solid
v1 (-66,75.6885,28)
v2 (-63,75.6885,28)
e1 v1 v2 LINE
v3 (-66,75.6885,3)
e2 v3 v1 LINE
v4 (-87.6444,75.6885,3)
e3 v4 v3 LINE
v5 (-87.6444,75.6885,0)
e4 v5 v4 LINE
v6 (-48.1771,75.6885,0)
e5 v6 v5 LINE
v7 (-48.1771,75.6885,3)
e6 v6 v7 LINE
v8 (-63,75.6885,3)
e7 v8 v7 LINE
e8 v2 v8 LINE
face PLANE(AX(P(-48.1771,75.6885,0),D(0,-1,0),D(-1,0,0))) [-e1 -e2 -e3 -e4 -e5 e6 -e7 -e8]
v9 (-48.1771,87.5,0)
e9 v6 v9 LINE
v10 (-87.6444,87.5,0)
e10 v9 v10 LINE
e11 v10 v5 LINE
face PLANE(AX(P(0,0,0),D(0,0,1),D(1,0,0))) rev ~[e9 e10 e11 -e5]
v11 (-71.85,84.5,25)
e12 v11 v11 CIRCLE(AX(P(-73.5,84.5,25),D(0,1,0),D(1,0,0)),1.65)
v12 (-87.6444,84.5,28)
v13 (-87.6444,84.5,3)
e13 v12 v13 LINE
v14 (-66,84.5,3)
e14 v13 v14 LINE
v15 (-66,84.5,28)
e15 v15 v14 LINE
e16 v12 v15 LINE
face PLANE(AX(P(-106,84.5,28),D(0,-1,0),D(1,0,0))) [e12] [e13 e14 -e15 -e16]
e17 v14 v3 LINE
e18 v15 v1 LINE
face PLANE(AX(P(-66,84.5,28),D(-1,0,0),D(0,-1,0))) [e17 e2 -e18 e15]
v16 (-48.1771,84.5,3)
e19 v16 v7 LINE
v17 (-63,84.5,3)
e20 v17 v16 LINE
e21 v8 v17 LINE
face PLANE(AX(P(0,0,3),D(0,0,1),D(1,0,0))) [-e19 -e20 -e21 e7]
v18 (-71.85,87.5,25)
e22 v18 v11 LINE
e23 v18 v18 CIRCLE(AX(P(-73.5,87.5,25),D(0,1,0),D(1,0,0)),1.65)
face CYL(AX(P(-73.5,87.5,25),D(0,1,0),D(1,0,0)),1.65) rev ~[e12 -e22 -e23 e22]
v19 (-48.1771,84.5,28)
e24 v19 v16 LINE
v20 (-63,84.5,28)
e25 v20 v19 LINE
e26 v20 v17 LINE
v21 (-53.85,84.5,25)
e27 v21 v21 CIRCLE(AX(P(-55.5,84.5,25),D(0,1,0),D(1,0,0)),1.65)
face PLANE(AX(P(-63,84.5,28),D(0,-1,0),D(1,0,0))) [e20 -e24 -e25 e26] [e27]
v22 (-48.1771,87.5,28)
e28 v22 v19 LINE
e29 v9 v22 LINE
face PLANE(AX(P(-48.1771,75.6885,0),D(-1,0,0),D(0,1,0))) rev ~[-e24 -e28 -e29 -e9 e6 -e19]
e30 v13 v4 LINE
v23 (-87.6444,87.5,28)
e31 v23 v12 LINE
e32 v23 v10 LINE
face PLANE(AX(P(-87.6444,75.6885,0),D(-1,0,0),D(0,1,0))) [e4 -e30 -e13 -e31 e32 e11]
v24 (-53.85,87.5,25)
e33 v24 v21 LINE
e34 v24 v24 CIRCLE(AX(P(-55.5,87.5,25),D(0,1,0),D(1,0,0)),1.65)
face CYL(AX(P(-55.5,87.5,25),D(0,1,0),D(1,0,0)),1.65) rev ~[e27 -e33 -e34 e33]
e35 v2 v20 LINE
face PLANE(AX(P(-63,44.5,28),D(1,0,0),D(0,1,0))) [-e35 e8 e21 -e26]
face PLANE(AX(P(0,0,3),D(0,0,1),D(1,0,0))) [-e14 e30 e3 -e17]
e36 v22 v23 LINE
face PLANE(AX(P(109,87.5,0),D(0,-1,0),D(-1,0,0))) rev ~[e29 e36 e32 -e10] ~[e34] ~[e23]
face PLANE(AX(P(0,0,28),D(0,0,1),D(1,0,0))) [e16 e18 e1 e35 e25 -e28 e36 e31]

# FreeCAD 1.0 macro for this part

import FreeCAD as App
import Part
import Sketcher

V = App.Vector


def add_polygon(sketch, points):
    """Adds a closed chain of lines whose ends are joined by coincident constraints."""
    first, n = sketch.GeometryCount, len(points)
    for a, b in zip(points, points[1:] + points[:1]):
        sketch.addGeometry(Part.LineSegment(App.Vector(*a, 0), App.Vector(*b, 0)), False)
    for i in range(n):
        sketch.addConstraint(Sketcher.Constraint("Coincident", first + i, 2, first + (i + 1) % n, 1))

doc = App.newDocument("Part")
params = doc.addObject("Spreadsheet::Sheet", "Params")
for row, (alias, value) in enumerate([
    ("sketch1_width", "218 mm"),
    ("sketch1_height", "175 mm"),
    ("pad1_length", "28 mm"),
    ("sketch2_width", "40 mm"),
    ("pocket1_length", "25 mm"),
    ("sketch3_diameter", "3.3 mm"),
    ("pocket2_length", "10 mm"),
], start=1):
    params.set(f"A{row}", alias)
    params.set(f"B{row}", "=" + value)
    params.setAlias(f"B{row}", alias)

body = doc.addObject("PartDesign::Body", "Body")

sketch1 = doc.addObject("Sketcher::SketchObject", "Sketch")
body.addObject(sketch1)
sketch1.AttachmentSupport = (doc.XY_Plane, [""])
sketch1.MapMode = "FlatFace"
add_polygon(sketch1, [(-109, 88), (-109, -88), (109, -88), (109, 88)])
sketch1.addConstraint([
    Sketcher.Constraint("Vertical", 0),
    Sketcher.Constraint("Horizontal", 1),
    Sketcher.Constraint("Vertical", 2),
    Sketcher.Constraint("Horizontal", 3),
    Sketcher.Constraint("Symmetric", 0, 2, 2, 2, -1, 1),
    Sketcher.Constraint("DistanceX", 1, 1, 1, 2, 218.0),
    Sketcher.Constraint("DistanceY", 0, 2, 0, 1, 175.0),
])
sketch1.setExpression("Constraints[9]", "Params.sketch1_width")
sketch1.setExpression("Constraints[10]", "Params.sketch1_height")
pad1 = doc.addObject("PartDesign::Pad", "Pad")
body.addObject(pad1)
pad1.Profile = sketch1
pad1.setExpression("Length", "Params.pad1_length")

sketch2 = doc.addObject("Sketcher::SketchObject", "Sketch001")
body.addObject(sketch2)
sketch2.AttachmentSupport = (doc.XY_Plane, [""])
sketch2.MapMode = "FlatFace"
sketch2.AttachmentOffset = App.Placement(V(0, 0, 28), App.Rotation())
add_polygon(sketch2, [(-66, 84), (-106, 84), (-106, 44), (-66, 44)])
add_polygon(sketch2, [(-23, 84), (-63, 84), (-63, 44), (-23, 44)])
add_polygon(sketch2, [(20, 84), (-20, 84), (-20, 44), (20, 44)])
add_polygon(sketch2, [(63, 84), (23, 84), (23, 44), (63, 44)])
add_polygon(sketch2, [(106, 84), (66, 84), (66, 44), (106, 44)])
add_polygon(sketch2, [(-66, 42), (-106, 42), (-106, 2), (-66, 2)])
add_polygon(sketch2, [(-23, 42), (-63, 42), (-63, 2), (-23, 2)])
add_polygon(sketch2, [(20, 42), (-20, 42), (-20, 2), (20, 2)])
add_polygon(sketch2, [(63, 42), (23, 42), (23, 2), (63, 2)])
add_polygon(sketch2, [(106, 42), (66, 42), (66, 2), (106, 2)])
add_polygon(sketch2, [(-66, -2), (-106, -2), (-106, -42), (-66, -42)])
add_polygon(sketch2, [(-23, -2), (-63, -2), (-63, -42), (-23, -42)])
add_polygon(sketch2, [(20, -2), (-20, -2), (-20, -42), (20, -42)])
add_polygon(sketch2, [(63, -2), (23, -2), (23, -42), (63, -42)])
add_polygon(sketch2, [(106, -2), (66, -2), (66, -42), (106, -42)])
add_polygon(sketch2, [(-66, -44), (-106, -44), (-106, -84), (-66, -84)])
add_polygon(sketch2, [(-23, -44), (-63, -44), (-63, -84), (-23, -84)])
add_polygon(sketch2, [(20, -44), (-20, -44), (-20, -84), (20, -84)])
add_polygon(sketch2, [(63, -44), (23, -44), (23, -84), (63, -84)])
add_polygon(sketch2, [(106, -44), (66, -44), (66, -84), (106, -84)])
sketch2.addConstraint([
    Sketcher.Constraint("Horizontal", 0),
    Sketcher.Constraint("Vertical", 1),
    Sketcher.Constraint("Horizontal", 2),
    Sketcher.Constraint("Vertical", 3),
    Sketcher.Constraint("Horizontal", 4),
    Sketcher.Constraint("Vertical", 5),
    Sketcher.Constraint("Horizontal", 6),
    Sketcher.Constraint("Vertical", 7),
    Sketcher.Constraint("Horizontal", 8),
    Sketcher.Constraint("Vertical", 9),
    Sketcher.Constraint("Horizontal", 10),
    Sketcher.Constraint("Vertical", 11),
    Sketcher.Constraint("Horizontal", 12),
    Sketcher.Constraint("Vertical", 13),
    Sketcher.Constraint("Horizontal", 14),
    Sketcher.Constraint("Vertical", 15),
    Sketcher.Constraint("Horizontal", 16),
    Sketcher.Constraint("Vertical", 17),
    Sketcher.Constraint("Horizontal", 18),
    Sketcher.Constraint("Vertical", 19),
    Sketcher.Constraint("Horizontal", 20),
    Sketcher.Constraint("Vertical", 21),
    Sketcher.Constraint("Horizontal", 22),
    Sketcher.Constraint("Vertical", 23),
    Sketcher.Constraint("Horizontal", 24),
    Sketcher.Constraint("Vertical", 25),
    Sketcher.Constraint("Horizontal", 26),
    Sketcher.Constraint("Vertical", 27),
    Sketcher.Constraint("Horizontal", 28),
    Sketcher.Constraint("Vertical", 29),
    Sketcher.Constraint("Horizontal", 30),
    Sketcher.Constraint("Vertical", 31),
    Sketcher.Constraint("Horizontal", 32),
    Sketcher.Constraint("Vertical", 33),
    Sketcher.Constraint("Horizontal", 34),
    Sketcher.Constraint("Vertical", 35),
    Sketcher.Constraint("Horizontal", 36),
    Sketcher.Constraint("Vertical", 37),
    Sketcher.Constraint("Horizontal", 38),
    Sketcher.Constraint("Vertical", 39),
    Sketcher.Constraint("Horizontal", 40),
    Sketcher.Constraint("Vertical", 41),
    Sketcher.Constraint("Horizontal", 42),
    Sketcher.Constraint("Vertical", 43),
    Sketcher.Constraint("Horizontal", 44),
    Sketcher.Constraint("Vertical", 45),
    Sketcher.Constraint("Horizontal", 46),
    Sketcher.Constraint("Vertical", 47),
    Sketcher.Constraint("Horizontal", 48),
    Sketcher.Constraint("Vertical", 49),
    Sketcher.Constraint("Horizontal", 50),
    Sketcher.Constraint("Vertical", 51),
    Sketcher.Constraint("Horizontal", 52),
    Sketcher.Constraint("Vertical", 53),
    Sketcher.Constraint("Horizontal", 54),
    Sketcher.Constraint("Vertical", 55),
    Sketcher.Constraint("Horizontal", 56),
    Sketcher.Constraint("Vertical", 57),
    Sketcher.Constraint("Horizontal", 58),
    Sketcher.Constraint("Vertical", 59),
    Sketcher.Constraint("Horizontal", 60),
    Sketcher.Constraint("Vertical", 61),
    Sketcher.Constraint("Horizontal", 62),
    Sketcher.Constraint("Vertical", 63),
    Sketcher.Constraint("Horizontal", 64),
    Sketcher.Constraint("Vertical", 65),
    Sketcher.Constraint("Horizontal", 66),
    Sketcher.Constraint("Vertical", 67),
    Sketcher.Constraint("Horizontal", 68),
    Sketcher.Constraint("Vertical", 69),
    Sketcher.Constraint("Horizontal", 70),
    Sketcher.Constraint("Vertical", 71),
    Sketcher.Constraint("Horizontal", 72),
    Sketcher.Constraint("Vertical", 73),
    Sketcher.Constraint("Horizontal", 74),
    Sketcher.Constraint("Vertical", 75),
    Sketcher.Constraint("Horizontal", 76),
    Sketcher.Constraint("Vertical", 77),
    Sketcher.Constraint("Horizontal", 78),
    Sketcher.Constraint("Vertical", 79),
    Sketcher.Constraint("Symmetric", 38, 2, 40, 2, -1, 1),
    Sketcher.Constraint("Symmetric", 36, 2, 42, 2, -1, 1),
    Sketcher.Constraint("Symmetric", 34, 2, 44, 2, -1, 1),
    Sketcher.Constraint("Symmetric", 32, 2, 46, 2, -1, 1),
    Sketcher.Constraint("Symmetric", 30, 2, 48, 2, -1, 1),
    Sketcher.Constraint("Symmetric", 28, 2, 50, 2, -1, 1),
    Sketcher.Constraint("Symmetric", 26, 2, 52, 2, -1, 1),
    Sketcher.Constraint("Symmetric", 24, 2, 54, 2, -1, 1),
    Sketcher.Constraint("Symmetric", 22, 2, 56, 2, -1, 1),
    Sketcher.Constraint("Symmetric", 20, 2, 58, 2, -1, 1),
    Sketcher.Constraint("Symmetric", 18, 2, 60, 2, -1, 1),
    Sketcher.Constraint("Symmetric", 16, 2, 62, 2, -1, 1),
    Sketcher.Constraint("Symmetric", 14, 2, 64, 2, -1, 1),
    Sketcher.Constraint("Symmetric", 12, 2, 66, 2, -1, 1),
    Sketcher.Constraint("Symmetric", 10, 2, 68, 2, -1, 1),
    Sketcher.Constraint("Symmetric", 8, 2, 70, 2, -1, 1),
    Sketcher.Constraint("Symmetric", 6, 2, 72, 2, -1, 1),
    Sketcher.Constraint("Symmetric", 4, 2, 74, 2, -1, 1),
    Sketcher.Constraint("Symmetric", 2, 2, 76, 2, -1, 1),
    Sketcher.Constraint("Symmetric", 0, 2, 78, 2, -1, 1),
    Sketcher.Constraint("Symmetric", 7, 2, 12, 2, -2),
    Sketcher.Constraint("Symmetric", 5, 2, 14, 2, -2),
    Sketcher.Constraint("Symmetric", 3, 2, 16, 2, -2),
    Sketcher.Constraint("Symmetric", 1, 2, 18, 2, -2),
    Sketcher.Constraint("Symmetric", 27, 2, 32, 2, -2),
    Sketcher.Constraint("Symmetric", 25, 2, 34, 2, -2),
    Sketcher.Constraint("Symmetric", 23, 2, 36, 2, -2),
    Sketcher.Constraint("Symmetric", 21, 2, 38, 2, -2),
    Sketcher.Constraint("Horizontal", 3, 2, 4, 2),
    Sketcher.Constraint("Horizontal", 2, 2, 5, 2),
    Sketcher.Constraint("Horizontal", 7, 2, 8, 2),
    Sketcher.Constraint("Horizontal", 6, 2, 9, 2),
    Sketcher.Constraint("Horizontal", 23, 2, 24, 2),
    Sketcher.Constraint("Horizontal", 22, 2, 25, 2),
    Sketcher.Constraint("Horizontal", 27, 2, 28, 2),
    Sketcher.Constraint("Horizontal", 26, 2, 29, 2),
    Sketcher.Constraint("Vertical", 1, 2, 20, 2),
    Sketcher.Constraint("Vertical", 3, 2, 22, 2),
    Sketcher.Constraint("Vertical", 5, 2, 24, 2),
    Sketcher.Constraint("Vertical", 7, 2, 26, 2),
    Sketcher.Constraint("Vertical", 9, 2, 28, 2),
    Sketcher.Constraint("Vertical", 11, 2, 30, 2),
    Sketcher.Constraint("Vertical", 29, 2, 48, 2),
    Sketcher.Constraint("Equal", 2, 4),
    Sketcher.Constraint("Equal", 6, 8),
    Sketcher.Constraint("Equal", 78, 1),
    Sketcher.Constraint("Equal", 19, 21),
    Sketcher.Constraint("DistanceX", 0, 2, 0, 1, 40.0),
    Sketcher.Constraint("DistanceX", 0, 2, -1, 1, 106.0),
    Sketcher.Constraint("DistanceX", 4, 2, -1, 1, 63.0),
    Sketcher.Constraint("DistanceY", -1, 1, 0, 2, 84.5),
    Sketcher.Constraint("DistanceY", -1, 1, 20, 2, 41.5),
])
sketch2.setExpression("Constraints[207]", "Params.sketch2_width")
pocket1 = doc.addObject("PartDesign::Pocket", "Pocket")
body.addObject(pocket1)
pocket1.Profile = sketch2
pocket1.setExpression("Length", "Params.pocket1_length")

sketch3 = doc.addObject("Sketcher::SketchObject", "Sketch002")
body.addObject(sketch3)
sketch3.AttachmentSupport = (doc.XZ_Plane, [""])
sketch3.MapMode = "FlatFace"
sketch3.AttachmentOffset = App.Placement(V(0, 0, -87.5), App.Rotation())
sketch3.addGeometry([
    Part.Circle(V(-55.5, 25, 0), V(0, 0, 1), 1.6),
    Part.Circle(V(-73.5, 25, 0), V(0, 0, 1), 1.6),
    Part.Circle(V(73.5, 25, 0), V(0, 0, 1), 1.6),
    Part.Circle(V(55.5, 25, 0), V(0, 0, 1), 1.6),
], False)
sketch3.addConstraint([
    Sketcher.Constraint("Equal", 0, 1),
    Sketcher.Constraint("Equal", 1, 2),
    Sketcher.Constraint("Equal", 2, 3),
    Sketcher.Constraint("Symmetric", 1, 3, 2, 3, -2),
    Sketcher.Constraint("Symmetric", 0, 3, 3, 3, -2),
    Sketcher.Constraint("Horizontal", 0, 3, 1, 3),
    Sketcher.Constraint("Diameter", 0, 3.3),
    Sketcher.Constraint("DistanceY", -1, 1, 0, 3, 25.0),
    Sketcher.Constraint("DistanceX", 1, 3, 0, 3, 18.0),
    Sketcher.Constraint("DistanceX", 0, 3, 2, 3, 129.0),
])
sketch3.setExpression("Constraints[6]", "Params.sketch3_diameter")
pocket2 = doc.addObject("PartDesign::Pocket", "Pocket001")
body.addObject(pocket2)
pocket2.Profile = sketch3
pocket2.setExpression("Length", "Params.pocket2_length")
pocket2.Reversed = True

sketch4 = doc.addObject("Sketcher::SketchObject", "Sketch003")
body.addObject(sketch4)
sketch4.AttachmentSupport = (doc.XY_Plane, [""])
sketch4.MapMode = "FlatFace"
add_polygon(sketch4, [(-48, 88), (137, 88), (137, -98), (15, -98), (15, -115), (-154, -115), (-154, 106), (-88, 106), (-88, 76), (-48, 76)])
sketch4.addConstraint([
    Sketcher.Constraint("Horizontal", 0),
    Sketcher.Constraint("Vertical", 1),
    Sketcher.Constraint("Horizontal", 2),
    Sketcher.Constraint("Vertical", 3),
    Sketcher.Constraint("Horizontal", 4),
    Sketcher.Constraint("Vertical", 5),
    Sketcher.Constraint("Horizontal", 6),
    Sketcher.Constraint("Vertical", 7),
    Sketcher.Constraint("Horizontal", 8),
    Sketcher.Constraint("Vertical", 9),
    Sketcher.Constraint("DistanceY", -1, 1, 0, 2, 87.5),
    Sketcher.Constraint("DistanceX", 0, 1, 0, 2, 185.292),
    Sketcher.Constraint("DistanceX", 2, 2, 2, 1, 121.682),
    Sketcher.Constraint("DistanceX", 6, 1, 6, 2, 66.093),
    Sketcher.Constraint("DistanceY", 3, 2, 3, 1, 17.709),
    Sketcher.Constraint("DistanceY", 5, 1, 5, 2, 221.289),
    Sketcher.Constraint("DistanceY", 7, 2, 7, 1, 30.236),
    Sketcher.Constraint("DistanceX", 4, 2, 4, 1, 169.1703),
    Sketcher.Constraint("DistanceY", 1, 2, 1, 1, 185.1556),
    Sketcher.Constraint("DistanceX", -1, 1, 0, 2, 137.115),
])
pocket3 = doc.addObject("PartDesign::Pocket", "Pocket002")
body.addObject(pocket3)
pocket3.Profile = sketch4
pocket3.Type = "ThroughAll"
pocket3.Reversed = True

doc.recompute()
